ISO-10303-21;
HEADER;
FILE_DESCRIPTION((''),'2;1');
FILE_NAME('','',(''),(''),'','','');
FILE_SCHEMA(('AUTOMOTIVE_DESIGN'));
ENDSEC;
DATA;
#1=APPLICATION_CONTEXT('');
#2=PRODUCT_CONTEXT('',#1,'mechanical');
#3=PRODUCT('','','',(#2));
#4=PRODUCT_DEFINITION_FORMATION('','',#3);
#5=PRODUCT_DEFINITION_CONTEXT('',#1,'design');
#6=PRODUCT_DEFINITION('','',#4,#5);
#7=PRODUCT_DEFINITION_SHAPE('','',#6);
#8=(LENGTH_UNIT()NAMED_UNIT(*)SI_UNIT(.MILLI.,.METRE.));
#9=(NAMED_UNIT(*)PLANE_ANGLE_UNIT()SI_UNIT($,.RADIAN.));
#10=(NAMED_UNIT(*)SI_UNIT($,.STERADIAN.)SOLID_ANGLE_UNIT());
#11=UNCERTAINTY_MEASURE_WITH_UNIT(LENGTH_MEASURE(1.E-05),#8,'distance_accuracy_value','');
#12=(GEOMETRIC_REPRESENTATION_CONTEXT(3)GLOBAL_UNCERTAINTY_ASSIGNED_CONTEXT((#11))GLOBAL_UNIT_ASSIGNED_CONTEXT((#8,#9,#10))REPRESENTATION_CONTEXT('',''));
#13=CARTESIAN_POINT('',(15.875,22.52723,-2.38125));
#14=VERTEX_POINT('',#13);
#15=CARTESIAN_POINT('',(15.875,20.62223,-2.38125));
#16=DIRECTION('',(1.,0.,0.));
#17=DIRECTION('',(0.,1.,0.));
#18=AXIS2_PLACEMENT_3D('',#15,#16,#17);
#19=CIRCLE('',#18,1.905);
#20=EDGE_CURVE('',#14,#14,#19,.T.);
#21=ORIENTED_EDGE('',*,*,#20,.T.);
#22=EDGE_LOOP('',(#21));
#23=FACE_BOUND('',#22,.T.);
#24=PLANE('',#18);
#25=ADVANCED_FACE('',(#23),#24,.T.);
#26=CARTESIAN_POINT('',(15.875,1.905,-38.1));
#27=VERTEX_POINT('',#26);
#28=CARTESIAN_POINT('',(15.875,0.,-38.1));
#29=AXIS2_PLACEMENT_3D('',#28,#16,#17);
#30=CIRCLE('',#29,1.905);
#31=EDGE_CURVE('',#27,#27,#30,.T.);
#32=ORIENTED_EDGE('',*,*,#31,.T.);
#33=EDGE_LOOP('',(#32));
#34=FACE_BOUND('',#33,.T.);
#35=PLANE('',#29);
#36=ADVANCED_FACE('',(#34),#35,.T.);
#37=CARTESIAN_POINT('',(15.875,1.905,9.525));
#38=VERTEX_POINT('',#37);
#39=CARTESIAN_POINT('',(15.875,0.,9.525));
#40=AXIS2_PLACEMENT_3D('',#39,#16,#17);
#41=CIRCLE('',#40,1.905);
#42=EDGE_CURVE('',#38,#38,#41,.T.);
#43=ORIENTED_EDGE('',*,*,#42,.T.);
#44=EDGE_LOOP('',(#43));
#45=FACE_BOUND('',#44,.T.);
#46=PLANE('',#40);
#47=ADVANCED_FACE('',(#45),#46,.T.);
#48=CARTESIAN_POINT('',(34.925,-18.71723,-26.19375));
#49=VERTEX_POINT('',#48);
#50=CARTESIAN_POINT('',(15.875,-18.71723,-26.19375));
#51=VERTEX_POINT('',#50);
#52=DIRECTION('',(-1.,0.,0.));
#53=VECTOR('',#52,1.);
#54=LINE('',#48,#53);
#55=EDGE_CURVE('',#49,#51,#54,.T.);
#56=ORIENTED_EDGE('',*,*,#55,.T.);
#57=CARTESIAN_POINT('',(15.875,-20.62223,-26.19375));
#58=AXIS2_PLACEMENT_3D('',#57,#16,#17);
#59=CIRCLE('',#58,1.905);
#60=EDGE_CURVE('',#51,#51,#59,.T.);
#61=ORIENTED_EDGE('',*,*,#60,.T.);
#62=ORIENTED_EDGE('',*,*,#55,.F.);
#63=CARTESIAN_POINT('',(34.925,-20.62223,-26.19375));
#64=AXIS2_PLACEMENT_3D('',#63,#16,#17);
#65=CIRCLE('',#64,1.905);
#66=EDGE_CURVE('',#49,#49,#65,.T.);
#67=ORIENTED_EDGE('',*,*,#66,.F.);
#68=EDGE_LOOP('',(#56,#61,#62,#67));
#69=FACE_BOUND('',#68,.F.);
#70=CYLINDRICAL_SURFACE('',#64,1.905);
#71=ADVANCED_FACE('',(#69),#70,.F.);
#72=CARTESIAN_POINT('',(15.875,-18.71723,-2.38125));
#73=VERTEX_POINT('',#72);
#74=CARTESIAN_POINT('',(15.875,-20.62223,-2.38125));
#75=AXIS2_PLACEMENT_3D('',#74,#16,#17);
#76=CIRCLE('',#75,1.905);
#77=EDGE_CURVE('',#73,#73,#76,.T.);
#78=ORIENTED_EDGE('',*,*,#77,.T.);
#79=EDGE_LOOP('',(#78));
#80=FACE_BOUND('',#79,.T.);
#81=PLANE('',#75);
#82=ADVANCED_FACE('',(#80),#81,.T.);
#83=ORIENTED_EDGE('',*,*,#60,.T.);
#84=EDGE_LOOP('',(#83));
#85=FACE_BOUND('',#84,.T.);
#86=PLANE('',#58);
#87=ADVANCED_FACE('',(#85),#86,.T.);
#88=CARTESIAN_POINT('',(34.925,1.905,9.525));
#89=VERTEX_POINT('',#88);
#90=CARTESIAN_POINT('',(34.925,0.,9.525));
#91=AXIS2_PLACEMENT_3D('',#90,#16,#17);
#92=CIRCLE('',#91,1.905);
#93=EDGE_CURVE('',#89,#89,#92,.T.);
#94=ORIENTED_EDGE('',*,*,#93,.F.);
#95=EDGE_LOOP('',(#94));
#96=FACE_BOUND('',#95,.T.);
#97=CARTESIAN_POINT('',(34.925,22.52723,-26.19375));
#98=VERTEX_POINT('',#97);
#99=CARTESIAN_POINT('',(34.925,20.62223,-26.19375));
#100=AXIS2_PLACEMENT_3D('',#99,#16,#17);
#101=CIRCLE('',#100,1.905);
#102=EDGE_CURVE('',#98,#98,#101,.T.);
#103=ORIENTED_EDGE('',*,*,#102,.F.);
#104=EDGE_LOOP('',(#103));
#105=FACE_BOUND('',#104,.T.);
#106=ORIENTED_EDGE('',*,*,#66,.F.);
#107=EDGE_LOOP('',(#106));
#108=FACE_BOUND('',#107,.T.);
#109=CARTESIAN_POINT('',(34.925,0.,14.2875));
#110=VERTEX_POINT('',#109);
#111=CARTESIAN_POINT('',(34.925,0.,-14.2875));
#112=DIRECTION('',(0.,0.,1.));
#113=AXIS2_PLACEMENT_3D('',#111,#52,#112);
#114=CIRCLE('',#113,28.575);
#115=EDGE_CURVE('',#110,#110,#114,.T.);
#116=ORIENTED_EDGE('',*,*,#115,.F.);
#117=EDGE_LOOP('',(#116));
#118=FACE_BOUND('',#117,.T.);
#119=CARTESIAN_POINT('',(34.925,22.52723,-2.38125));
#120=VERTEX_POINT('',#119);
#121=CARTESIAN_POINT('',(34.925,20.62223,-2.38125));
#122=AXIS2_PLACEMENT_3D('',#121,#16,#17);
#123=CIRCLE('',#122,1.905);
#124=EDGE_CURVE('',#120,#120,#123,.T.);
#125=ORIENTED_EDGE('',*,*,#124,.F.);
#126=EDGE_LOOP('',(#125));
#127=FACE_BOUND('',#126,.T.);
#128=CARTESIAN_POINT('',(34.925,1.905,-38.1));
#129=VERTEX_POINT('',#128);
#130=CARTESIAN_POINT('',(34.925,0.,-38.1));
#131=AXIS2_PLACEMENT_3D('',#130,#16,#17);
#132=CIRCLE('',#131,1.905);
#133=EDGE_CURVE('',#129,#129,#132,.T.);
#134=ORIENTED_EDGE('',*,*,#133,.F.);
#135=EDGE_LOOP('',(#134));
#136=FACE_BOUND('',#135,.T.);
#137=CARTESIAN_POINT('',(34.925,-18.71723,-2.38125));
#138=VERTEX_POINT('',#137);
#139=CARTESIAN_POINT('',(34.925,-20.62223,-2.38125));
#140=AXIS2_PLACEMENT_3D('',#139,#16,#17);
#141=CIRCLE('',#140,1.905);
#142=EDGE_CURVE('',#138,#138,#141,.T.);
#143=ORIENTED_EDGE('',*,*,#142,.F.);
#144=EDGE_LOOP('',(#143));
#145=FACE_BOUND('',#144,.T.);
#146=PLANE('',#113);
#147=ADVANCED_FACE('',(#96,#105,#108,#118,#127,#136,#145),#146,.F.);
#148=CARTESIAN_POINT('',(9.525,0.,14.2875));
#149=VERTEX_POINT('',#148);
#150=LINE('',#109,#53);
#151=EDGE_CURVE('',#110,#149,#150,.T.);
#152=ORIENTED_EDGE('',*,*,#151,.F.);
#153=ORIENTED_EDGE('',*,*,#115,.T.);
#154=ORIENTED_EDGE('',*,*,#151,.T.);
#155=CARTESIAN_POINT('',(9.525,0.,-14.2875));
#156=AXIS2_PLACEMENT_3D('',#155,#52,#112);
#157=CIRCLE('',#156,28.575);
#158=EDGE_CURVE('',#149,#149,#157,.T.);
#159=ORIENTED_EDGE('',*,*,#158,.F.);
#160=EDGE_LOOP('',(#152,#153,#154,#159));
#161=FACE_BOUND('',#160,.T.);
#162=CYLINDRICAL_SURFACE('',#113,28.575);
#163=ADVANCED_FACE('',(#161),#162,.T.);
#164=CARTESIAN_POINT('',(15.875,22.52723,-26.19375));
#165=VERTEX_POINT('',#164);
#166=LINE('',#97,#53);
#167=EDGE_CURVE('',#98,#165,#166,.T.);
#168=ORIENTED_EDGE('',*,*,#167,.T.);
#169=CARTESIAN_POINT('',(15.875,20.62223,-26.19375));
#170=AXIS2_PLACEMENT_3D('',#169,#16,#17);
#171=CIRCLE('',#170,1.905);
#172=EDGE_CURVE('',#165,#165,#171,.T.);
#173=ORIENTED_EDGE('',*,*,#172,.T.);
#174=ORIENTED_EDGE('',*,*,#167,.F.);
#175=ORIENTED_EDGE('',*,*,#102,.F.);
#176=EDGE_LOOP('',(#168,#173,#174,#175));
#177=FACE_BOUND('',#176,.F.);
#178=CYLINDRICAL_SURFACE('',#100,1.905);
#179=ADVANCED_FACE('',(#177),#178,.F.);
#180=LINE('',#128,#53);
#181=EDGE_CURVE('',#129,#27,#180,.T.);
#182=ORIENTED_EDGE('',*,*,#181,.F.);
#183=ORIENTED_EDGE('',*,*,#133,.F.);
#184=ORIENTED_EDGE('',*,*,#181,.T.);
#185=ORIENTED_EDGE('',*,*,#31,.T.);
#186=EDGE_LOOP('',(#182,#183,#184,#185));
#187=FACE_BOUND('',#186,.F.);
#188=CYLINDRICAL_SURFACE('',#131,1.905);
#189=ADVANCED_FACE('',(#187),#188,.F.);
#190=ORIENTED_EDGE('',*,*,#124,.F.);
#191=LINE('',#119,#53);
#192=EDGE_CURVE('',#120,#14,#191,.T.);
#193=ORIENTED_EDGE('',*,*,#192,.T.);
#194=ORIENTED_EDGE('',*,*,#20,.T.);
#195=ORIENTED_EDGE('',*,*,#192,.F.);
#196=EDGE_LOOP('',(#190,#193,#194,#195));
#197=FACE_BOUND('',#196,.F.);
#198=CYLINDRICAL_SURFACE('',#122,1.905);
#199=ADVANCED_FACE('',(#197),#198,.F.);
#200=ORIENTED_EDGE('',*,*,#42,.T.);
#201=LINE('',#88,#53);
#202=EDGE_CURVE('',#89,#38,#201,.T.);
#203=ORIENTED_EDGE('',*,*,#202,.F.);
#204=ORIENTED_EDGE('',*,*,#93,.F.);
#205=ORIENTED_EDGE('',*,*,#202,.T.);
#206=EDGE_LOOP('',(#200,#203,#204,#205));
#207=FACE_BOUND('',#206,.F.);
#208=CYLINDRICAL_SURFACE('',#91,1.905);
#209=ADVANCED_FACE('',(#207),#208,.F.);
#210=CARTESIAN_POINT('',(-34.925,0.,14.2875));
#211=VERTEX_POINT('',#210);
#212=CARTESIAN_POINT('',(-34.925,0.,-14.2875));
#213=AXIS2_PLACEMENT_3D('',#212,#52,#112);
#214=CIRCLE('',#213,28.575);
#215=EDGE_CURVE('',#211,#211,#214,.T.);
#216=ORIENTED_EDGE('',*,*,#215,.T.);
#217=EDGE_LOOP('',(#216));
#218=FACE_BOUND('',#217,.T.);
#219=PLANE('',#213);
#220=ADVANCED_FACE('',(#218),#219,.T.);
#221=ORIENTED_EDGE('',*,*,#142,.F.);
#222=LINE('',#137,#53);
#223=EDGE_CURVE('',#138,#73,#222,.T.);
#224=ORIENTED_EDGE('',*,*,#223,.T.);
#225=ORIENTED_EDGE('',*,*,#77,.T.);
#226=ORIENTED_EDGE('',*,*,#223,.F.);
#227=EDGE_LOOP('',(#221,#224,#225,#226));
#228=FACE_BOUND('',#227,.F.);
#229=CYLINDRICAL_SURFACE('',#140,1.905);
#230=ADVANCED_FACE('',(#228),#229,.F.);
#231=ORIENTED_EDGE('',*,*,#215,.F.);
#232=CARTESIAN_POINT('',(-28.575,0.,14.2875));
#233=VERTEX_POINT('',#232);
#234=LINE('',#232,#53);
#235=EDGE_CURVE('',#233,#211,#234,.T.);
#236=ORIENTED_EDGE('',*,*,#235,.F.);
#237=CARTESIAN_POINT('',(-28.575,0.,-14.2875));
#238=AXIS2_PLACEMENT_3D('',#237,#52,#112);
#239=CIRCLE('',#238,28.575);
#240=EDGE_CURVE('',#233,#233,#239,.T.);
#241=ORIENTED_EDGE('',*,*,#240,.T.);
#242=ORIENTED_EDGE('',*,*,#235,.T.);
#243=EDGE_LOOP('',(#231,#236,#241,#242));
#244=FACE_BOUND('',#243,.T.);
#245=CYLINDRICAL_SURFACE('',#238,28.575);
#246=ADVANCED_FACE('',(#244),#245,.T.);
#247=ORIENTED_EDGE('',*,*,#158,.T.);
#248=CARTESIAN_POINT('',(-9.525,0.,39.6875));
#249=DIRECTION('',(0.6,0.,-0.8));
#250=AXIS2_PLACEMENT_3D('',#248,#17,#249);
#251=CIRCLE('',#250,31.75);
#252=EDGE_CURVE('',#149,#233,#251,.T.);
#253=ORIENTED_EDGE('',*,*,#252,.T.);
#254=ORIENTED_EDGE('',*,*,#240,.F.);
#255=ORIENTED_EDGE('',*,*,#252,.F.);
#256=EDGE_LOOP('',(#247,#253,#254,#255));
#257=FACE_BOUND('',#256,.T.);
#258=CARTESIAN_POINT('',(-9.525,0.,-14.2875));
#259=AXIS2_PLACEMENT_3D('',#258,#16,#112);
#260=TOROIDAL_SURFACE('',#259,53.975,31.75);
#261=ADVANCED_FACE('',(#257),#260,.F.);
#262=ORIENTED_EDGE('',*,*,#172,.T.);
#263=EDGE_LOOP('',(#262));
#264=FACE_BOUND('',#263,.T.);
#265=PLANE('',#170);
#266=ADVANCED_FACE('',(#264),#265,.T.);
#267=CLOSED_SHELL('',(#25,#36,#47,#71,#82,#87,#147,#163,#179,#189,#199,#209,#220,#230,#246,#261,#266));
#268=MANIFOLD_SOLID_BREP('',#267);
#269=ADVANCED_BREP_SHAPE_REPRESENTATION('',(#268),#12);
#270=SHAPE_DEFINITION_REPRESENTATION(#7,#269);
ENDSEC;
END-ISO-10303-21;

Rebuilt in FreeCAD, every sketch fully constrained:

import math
import FreeCAD as App
import Part
import Sketcher
from FreeCAD import Vector
Q = App.Units.Quantity

doc = App.newDocument("Part")
body = doc.addObject("PartDesign::Body", "Body")

sketch1 = body.newObject("Sketcher::SketchObject", "Sketch")
sketch1.AttachmentSupport = (doc.getObject("XZ_Plane"), [""])
sketch1.MapMode = "FlatFace"
sketch1.addGeometry(Part.LineSegment(Vector(35, -14, 0), Vector(35, 14, 0)), False)
sketch1.addGeometry(Part.LineSegment(Vector(35, 14, 0), Vector(10, 14, 0)), False)
sketch1.addGeometry(Part.ArcOfCircle(Part.Circle(Vector(-10, 40, 0), Vector(0, 0, 1), 32), math.radians(-127), math.radians(-53)), False)
sketch1.addGeometry(Part.LineSegment(Vector(-29, 14, 0), Vector(-35, 14, 0)), False)
sketch1.addGeometry(Part.LineSegment(Vector(-35, 14, 0), Vector(-35, -14, 0)), False)
sketch1.addGeometry(Part.LineSegment(Vector(-35, -14, 0), Vector(35, -14, 0)), False)
sketch1.addGeometry(Part.LineSegment(Vector(35, -14, 0), Vector(-35, -14, 0)), True)
sketch1.addConstraint(Sketcher.Constraint("Coincident", 0, 2, 1, 1))
sketch1.addConstraint(Sketcher.Constraint("Coincident", 1, 2, 2, 2))
sketch1.addConstraint(Sketcher.Constraint("Coincident", 2, 1, 3, 1))
sketch1.addConstraint(Sketcher.Constraint("Coincident", 3, 2, 4, 1))
sketch1.addConstraint(Sketcher.Constraint("Coincident", 4, 2, 5, 1))
sketch1.addConstraint(Sketcher.Constraint("Coincident", 5, 2, 0, 1))
sketch1.addConstraint(Sketcher.Constraint("Vertical", 0))
sketch1.addConstraint(Sketcher.Constraint("Horizontal", 1))
sketch1.addConstraint(Sketcher.Constraint("Horizontal", 3))
sketch1.addConstraint(Sketcher.Constraint("Vertical", 4))
sketch1.addConstraint(Sketcher.Constraint("Horizontal", 5))
sketch1.addConstraint(Sketcher.Constraint("Horizontal", 6))
sketch1.addConstraint(Sketcher.Constraint("Coincident", 6, 1, 5, 2))
sketch1.addConstraint(Sketcher.Constraint("Symmetric", 0, 2, 4, 2, -1, 1))
sketch1.addConstraint(Sketcher.Constraint("Symmetric", 3, 2, 6, 2, -1))
sketch1.addConstraint(Sketcher.Constraint("DistanceX", 1, 2, 1, 1, Q("1 in")))
sketch1.addConstraint(Sketcher.Constraint("Radius", 2, Q("1.25 in")))
sketch1.addConstraint(Sketcher.Constraint("DistanceY", 0, 2, 2, 3, Q("1 in")))
sketch1.addConstraint(Sketcher.Constraint("DistanceX", 3, 2, 2, 3, Q("1 in")))
sketch1.addConstraint(Sketcher.Constraint("DistanceY", 0, 1, 0, 2, Q("1.125 in")))
revolution = body.newObject("PartDesign::Revolution", "Revolution")
revolution.Profile = sketch1
revolution.ReferenceAxis = (sketch1, ["Axis0"])
revolution.Angle = 360

sketch2 = body.newObject("Sketcher::SketchObject", "Sketch001")
sketch2.AttachmentSupport = (doc.getObject("YZ_Plane"), [""])
sketch2.MapMode = "FlatFace"
sketch2.AttachmentOffset = App.Placement(Vector(0, 0, 1.375 * 25.4), App.Rotation())
sketch2.addGeometry(Part.Circle(Vector(0, 9.5, 0), Vector(0, 0, 1), 1.9), False)
sketch2.addGeometry(Part.Circle(Vector(-20.6, -2.4, 0), Vector(0, 0, 1), 1.9), False)
sketch2.addGeometry(Part.Circle(Vector(-20.6, -26.2, 0), Vector(0, 0, 1), 1.9), False)
sketch2.addGeometry(Part.Circle(Vector(0, -38.1, 0), Vector(0, 0, 1), 1.9), False)
sketch2.addGeometry(Part.Circle(Vector(20.6, -26.2, 0), Vector(0, 0, 1), 1.9), False)
sketch2.addGeometry(Part.Circle(Vector(20.6, -2.4, 0), Vector(0, 0, 1), 1.9), False)
sketch2.addConstraint(Sketcher.Constraint("Equal", 0, 1))
sketch2.addConstraint(Sketcher.Constraint("Equal", 1, 2))
sketch2.addConstraint(Sketcher.Constraint("Equal", 2, 3))
sketch2.addConstraint(Sketcher.Constraint("Equal", 3, 4))
sketch2.addConstraint(Sketcher.Constraint("Equal", 4, 5))
sketch2.addConstraint(Sketcher.Constraint("Symmetric", 2, 3, 4, 3, -2))
sketch2.addConstraint(Sketcher.Constraint("Symmetric", 1, 3, 5, 3, -2))
sketch2.addConstraint(Sketcher.Constraint("PointOnObject", 0, 3, -2))
sketch2.addConstraint(Sketcher.Constraint("PointOnObject", 3, 3, -2))
sketch2.addConstraint(Sketcher.Constraint("Vertical", 1, 3, 2, 3))
sketch2.addConstraint(Sketcher.Constraint("Diameter", 0, Q("0.15 in")))
sketch2.addConstraint(Sketcher.Constraint("DistanceY", 3, 3, -1, 1, Q("1.5 in")))
sketch2.addConstraint(Sketcher.Constraint("DistanceY", -1, 1, 0, 3, Q("0.375 in")))
sketch2.addConstraint(Sketcher.Constraint("DistanceY", 1, 3, -1, 1, Q("0.09375 in")))
sketch2.addConstraint(Sketcher.Constraint("DistanceY", 2, 3, -1, 1, Q("1.03125 in")))
sketch2.addConstraint(Sketcher.Constraint("DistanceX", 1, 3, -1, 1, Q("20.62223 mm")))
pocket1 = body.newObject("PartDesign::Pocket", "Pocket")
pocket1.Profile = sketch2
pocket1.Length = Q("0.75 in")

doc.recompute()
